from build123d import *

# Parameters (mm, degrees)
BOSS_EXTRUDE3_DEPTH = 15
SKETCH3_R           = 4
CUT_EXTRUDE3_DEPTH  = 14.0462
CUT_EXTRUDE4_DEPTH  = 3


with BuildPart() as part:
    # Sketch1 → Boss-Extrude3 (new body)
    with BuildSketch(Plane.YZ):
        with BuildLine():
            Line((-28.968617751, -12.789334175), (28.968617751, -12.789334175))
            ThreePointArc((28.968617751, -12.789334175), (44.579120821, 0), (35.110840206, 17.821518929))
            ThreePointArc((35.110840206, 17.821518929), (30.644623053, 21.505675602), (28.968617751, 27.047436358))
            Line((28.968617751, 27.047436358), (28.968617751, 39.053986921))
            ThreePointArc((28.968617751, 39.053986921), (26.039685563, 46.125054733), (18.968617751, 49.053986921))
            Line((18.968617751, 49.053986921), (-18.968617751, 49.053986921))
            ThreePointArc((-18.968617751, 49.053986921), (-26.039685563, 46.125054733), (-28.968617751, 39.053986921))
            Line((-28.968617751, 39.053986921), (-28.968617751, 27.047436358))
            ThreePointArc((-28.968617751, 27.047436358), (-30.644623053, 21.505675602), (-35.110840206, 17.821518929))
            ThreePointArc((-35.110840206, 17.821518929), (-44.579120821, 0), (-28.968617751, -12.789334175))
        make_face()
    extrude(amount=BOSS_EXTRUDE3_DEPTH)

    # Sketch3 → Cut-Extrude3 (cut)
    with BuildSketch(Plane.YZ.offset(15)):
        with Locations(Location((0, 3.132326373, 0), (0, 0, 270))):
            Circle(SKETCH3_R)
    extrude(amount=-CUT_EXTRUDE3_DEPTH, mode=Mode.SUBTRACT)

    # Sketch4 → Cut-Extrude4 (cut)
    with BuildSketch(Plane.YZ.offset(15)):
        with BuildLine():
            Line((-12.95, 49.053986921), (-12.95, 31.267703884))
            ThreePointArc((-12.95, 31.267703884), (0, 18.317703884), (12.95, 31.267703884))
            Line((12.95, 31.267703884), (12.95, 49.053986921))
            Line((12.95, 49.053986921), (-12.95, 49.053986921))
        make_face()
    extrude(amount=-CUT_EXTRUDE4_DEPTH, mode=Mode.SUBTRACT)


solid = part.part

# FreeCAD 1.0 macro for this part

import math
import FreeCAD as App
import Part
import Sketcher
Q = App.Units.Quantity

doc = App.newDocument("Part")
body = doc.addObject("PartDesign::Body", "Body")

sketch1 = doc.addObject("Sketcher::SketchObject", "Sketch")
body.addObject(sketch1)
sketch1.AttachmentSupport = (doc.YZ_Plane, [""])
sketch1.MapMode = "FlatFace"
sketch1.addGeometry(Part.LineSegment(App.Vector(-29, -13, 0), App.Vector(29, -13, 0)), False)
sketch1.addGeometry(Part.ArcOfCircle(Part.Circle(App.Vector(29, 3, 0), App.Vector(0, 0, 1), 16), math.radians(-90), math.radians(67)), False)
sketch1.addGeometry(Part.ArcOfCircle(Part.Circle(App.Vector(39, 27, 0), App.Vector(0, 0, 1), 10), math.radians(180), math.radians(247)), False)
sketch1.addGeometry(Part.LineSegment(App.Vector(29, 27, 0), App.Vector(29, 39, 0)), False)
sketch1.addGeometry(Part.ArcOfCircle(Part.Circle(App.Vector(19, 39, 0), App.Vector(0, 0, 1), 10), math.radians(0), math.radians(90)), False)
sketch1.addGeometry(Part.LineSegment(App.Vector(19, 49, 0), App.Vector(-19, 49, 0)), False)
sketch1.addGeometry(Part.ArcOfCircle(Part.Circle(App.Vector(-19, 39, 0), App.Vector(0, 0, 1), 10), math.radians(90), math.radians(180)), False)
sketch1.addGeometry(Part.LineSegment(App.Vector(-29, 39, 0), App.Vector(-29, 27, 0)), False)
sketch1.addGeometry(Part.ArcOfCircle(Part.Circle(App.Vector(-39, 27, 0), App.Vector(0, 0, 1), 10), math.radians(-67), math.radians(0)), False)
sketch1.addGeometry(Part.ArcOfCircle(Part.Circle(App.Vector(-29, 3, 0), App.Vector(0, 0, 1), 16), math.radians(113), math.radians(270)), False)
sketch1.addConstraint(Sketcher.Constraint("Tangent", 0, 2, 1, 1))
sketch1.addConstraint(Sketcher.Constraint("Tangent", 1, 2, 2, 2))
sketch1.addConstraint(Sketcher.Constraint("Tangent", 2, 1, 3, 1))
sketch1.addConstraint(Sketcher.Constraint("Tangent", 3, 2, 4, 1))
sketch1.addConstraint(Sketcher.Constraint("Tangent", 4, 2, 5, 1))
sketch1.addConstraint(Sketcher.Constraint("Tangent", 5, 2, 6, 1))
sketch1.addConstraint(Sketcher.Constraint("Tangent", 6, 2, 7, 1))
sketch1.addConstraint(Sketcher.Constraint("Tangent", 7, 2, 8, 2))
sketch1.addConstraint(Sketcher.Constraint("Tangent", 8, 1, 9, 1))
sketch1.addConstraint(Sketcher.Constraint("Tangent", 9, 2, 0, 1))
sketch1.addConstraint(Sketcher.Constraint("Horizontal", 0))
sketch1.addConstraint(Sketcher.Constraint("Vertical", 3))
sketch1.addConstraint(Sketcher.Constraint("Horizontal", 5))
sketch1.addConstraint(Sketcher.Constraint("Vertical", 7))
sketch1.addConstraint(Sketcher.Constraint("Equal", 2, 4))
sketch1.addConstraint(Sketcher.Constraint("Equal", 4, 6))
sketch1.addConstraint(Sketcher.Constraint("Equal", 6, 8))
sketch1.addConstraint(Sketcher.Constraint("Equal", 1, 9))
sketch1.addConstraint(Sketcher.Constraint("Symmetric", 2, 3, 8, 3, -2))
sketch1.addConstraint(Sketcher.Constraint("Vertical", 0, 2, 2, 1))
sketch1.addConstraint(Sketcher.Constraint("Radius", 2, Q("10 mm")))
sketch1.addConstraint(Sketcher.Constraint("Radius", 1, Q("15.921661 mm")))
sketch1.addConstraint(Sketcher.Constraint("DistanceY", 3, 1, 3, 2, Q("12.006551 mm")))
sketch1.addConstraint(Sketcher.Constraint("DistanceX", 0, 1, 0, 2, Q("57.937236 mm")))
sketch1.addConstraint(Sketcher.Constraint("DistanceY", -1, 1, 1, 2, Q("17.821519 mm")))
pad1 = doc.addObject("PartDesign::Pad", "Pad")
body.addObject(pad1)
pad1.Profile = sketch1
pad1.Length = 15

sketch2 = doc.addObject("Sketcher::SketchObject", "Sketch001")
body.addObject(sketch2)
sketch2.AttachmentSupport = (doc.YZ_Plane, [""])
sketch2.MapMode = "FlatFace"
sketch2.AttachmentOffset = App.Placement(App.Vector(0, 0, 15), App.Rotation())
sketch2.addGeometry(Part.Circle(App.Vector(0, 3.1, 0), App.Vector(0, 0, 1), 4), False)
sketch2.addConstraint(Sketcher.Constraint("PointOnObject", 0, 3, -2))
sketch2.addConstraint(Sketcher.Constraint("Diameter", 0, Q("8 mm")))
sketch2.addConstraint(Sketcher.Constraint("DistanceY", -1, 1, 0, 3, Q("3.132326 mm")))
pocket1 = doc.addObject("PartDesign::Pocket", "Pocket")
body.addObject(pocket1)
pocket1.Profile = sketch2
pocket1.Length = 14.0462

sketch3 = doc.addObject("Sketcher::SketchObject", "Sketch002")
body.addObject(sketch3)
sketch3.AttachmentSupport = (doc.YZ_Plane, [""])
sketch3.MapMode = "FlatFace"
sketch3.AttachmentOffset = App.Placement(App.Vector(0, 0, 15), App.Rotation())
sketch3.addGeometry(Part.LineSegment(App.Vector(-13, 49, 0), App.Vector(-13, 31, 0)), False)
sketch3.addGeometry(Part.ArcOfCircle(Part.Circle(App.Vector(0, 31, 0), App.Vector(0, 0, 1), 13), math.radians(180), math.radians(360)), False)
sketch3.addGeometry(Part.LineSegment(App.Vector(13, 31, 0), App.Vector(13, 49, 0)), False)
sketch3.addGeometry(Part.LineSegment(App.Vector(13, 49, 0), App.Vector(-13, 49, 0)), False)
sketch3.addConstraint(Sketcher.Constraint("Tangent", 0, 2, 1, 1))
sketch3.addConstraint(Sketcher.Constraint("Tangent", 1, 2, 2, 1))
sketch3.addConstraint(Sketcher.Constraint("Coincident", 2, 2, 3, 1))
sketch3.addConstraint(Sketcher.Constraint("Coincident", 3, 2, 0, 1))
sketch3.addConstraint(Sketcher.Constraint("Vertical", 0))
sketch3.addConstraint(Sketcher.Constraint("Vertical", 2))
sketch3.addConstraint(Sketcher.Constraint("Horizontal", 3))
sketch3.addConstraint(Sketcher.Constraint("PointOnObject", 1, 3, -2))
sketch3.addConstraint(Sketcher.Constraint("Radius", 1, Q("12.95 mm")))
sketch3.addConstraint(Sketcher.Constraint("DistanceY", 0, 2, 0, 1, Q("17.786283 mm")))
sketch3.addConstraint(Sketcher.Constraint("DistanceY", -1, 1, 1, 3, Q("31.267704 mm")))
pocket2 = doc.addObject("PartDesign::Pocket", "Pocket001")
body.addObject(pocket2)
pocket2.Profile = sketch3
pocket2.Length = 3

doc.recompute()
